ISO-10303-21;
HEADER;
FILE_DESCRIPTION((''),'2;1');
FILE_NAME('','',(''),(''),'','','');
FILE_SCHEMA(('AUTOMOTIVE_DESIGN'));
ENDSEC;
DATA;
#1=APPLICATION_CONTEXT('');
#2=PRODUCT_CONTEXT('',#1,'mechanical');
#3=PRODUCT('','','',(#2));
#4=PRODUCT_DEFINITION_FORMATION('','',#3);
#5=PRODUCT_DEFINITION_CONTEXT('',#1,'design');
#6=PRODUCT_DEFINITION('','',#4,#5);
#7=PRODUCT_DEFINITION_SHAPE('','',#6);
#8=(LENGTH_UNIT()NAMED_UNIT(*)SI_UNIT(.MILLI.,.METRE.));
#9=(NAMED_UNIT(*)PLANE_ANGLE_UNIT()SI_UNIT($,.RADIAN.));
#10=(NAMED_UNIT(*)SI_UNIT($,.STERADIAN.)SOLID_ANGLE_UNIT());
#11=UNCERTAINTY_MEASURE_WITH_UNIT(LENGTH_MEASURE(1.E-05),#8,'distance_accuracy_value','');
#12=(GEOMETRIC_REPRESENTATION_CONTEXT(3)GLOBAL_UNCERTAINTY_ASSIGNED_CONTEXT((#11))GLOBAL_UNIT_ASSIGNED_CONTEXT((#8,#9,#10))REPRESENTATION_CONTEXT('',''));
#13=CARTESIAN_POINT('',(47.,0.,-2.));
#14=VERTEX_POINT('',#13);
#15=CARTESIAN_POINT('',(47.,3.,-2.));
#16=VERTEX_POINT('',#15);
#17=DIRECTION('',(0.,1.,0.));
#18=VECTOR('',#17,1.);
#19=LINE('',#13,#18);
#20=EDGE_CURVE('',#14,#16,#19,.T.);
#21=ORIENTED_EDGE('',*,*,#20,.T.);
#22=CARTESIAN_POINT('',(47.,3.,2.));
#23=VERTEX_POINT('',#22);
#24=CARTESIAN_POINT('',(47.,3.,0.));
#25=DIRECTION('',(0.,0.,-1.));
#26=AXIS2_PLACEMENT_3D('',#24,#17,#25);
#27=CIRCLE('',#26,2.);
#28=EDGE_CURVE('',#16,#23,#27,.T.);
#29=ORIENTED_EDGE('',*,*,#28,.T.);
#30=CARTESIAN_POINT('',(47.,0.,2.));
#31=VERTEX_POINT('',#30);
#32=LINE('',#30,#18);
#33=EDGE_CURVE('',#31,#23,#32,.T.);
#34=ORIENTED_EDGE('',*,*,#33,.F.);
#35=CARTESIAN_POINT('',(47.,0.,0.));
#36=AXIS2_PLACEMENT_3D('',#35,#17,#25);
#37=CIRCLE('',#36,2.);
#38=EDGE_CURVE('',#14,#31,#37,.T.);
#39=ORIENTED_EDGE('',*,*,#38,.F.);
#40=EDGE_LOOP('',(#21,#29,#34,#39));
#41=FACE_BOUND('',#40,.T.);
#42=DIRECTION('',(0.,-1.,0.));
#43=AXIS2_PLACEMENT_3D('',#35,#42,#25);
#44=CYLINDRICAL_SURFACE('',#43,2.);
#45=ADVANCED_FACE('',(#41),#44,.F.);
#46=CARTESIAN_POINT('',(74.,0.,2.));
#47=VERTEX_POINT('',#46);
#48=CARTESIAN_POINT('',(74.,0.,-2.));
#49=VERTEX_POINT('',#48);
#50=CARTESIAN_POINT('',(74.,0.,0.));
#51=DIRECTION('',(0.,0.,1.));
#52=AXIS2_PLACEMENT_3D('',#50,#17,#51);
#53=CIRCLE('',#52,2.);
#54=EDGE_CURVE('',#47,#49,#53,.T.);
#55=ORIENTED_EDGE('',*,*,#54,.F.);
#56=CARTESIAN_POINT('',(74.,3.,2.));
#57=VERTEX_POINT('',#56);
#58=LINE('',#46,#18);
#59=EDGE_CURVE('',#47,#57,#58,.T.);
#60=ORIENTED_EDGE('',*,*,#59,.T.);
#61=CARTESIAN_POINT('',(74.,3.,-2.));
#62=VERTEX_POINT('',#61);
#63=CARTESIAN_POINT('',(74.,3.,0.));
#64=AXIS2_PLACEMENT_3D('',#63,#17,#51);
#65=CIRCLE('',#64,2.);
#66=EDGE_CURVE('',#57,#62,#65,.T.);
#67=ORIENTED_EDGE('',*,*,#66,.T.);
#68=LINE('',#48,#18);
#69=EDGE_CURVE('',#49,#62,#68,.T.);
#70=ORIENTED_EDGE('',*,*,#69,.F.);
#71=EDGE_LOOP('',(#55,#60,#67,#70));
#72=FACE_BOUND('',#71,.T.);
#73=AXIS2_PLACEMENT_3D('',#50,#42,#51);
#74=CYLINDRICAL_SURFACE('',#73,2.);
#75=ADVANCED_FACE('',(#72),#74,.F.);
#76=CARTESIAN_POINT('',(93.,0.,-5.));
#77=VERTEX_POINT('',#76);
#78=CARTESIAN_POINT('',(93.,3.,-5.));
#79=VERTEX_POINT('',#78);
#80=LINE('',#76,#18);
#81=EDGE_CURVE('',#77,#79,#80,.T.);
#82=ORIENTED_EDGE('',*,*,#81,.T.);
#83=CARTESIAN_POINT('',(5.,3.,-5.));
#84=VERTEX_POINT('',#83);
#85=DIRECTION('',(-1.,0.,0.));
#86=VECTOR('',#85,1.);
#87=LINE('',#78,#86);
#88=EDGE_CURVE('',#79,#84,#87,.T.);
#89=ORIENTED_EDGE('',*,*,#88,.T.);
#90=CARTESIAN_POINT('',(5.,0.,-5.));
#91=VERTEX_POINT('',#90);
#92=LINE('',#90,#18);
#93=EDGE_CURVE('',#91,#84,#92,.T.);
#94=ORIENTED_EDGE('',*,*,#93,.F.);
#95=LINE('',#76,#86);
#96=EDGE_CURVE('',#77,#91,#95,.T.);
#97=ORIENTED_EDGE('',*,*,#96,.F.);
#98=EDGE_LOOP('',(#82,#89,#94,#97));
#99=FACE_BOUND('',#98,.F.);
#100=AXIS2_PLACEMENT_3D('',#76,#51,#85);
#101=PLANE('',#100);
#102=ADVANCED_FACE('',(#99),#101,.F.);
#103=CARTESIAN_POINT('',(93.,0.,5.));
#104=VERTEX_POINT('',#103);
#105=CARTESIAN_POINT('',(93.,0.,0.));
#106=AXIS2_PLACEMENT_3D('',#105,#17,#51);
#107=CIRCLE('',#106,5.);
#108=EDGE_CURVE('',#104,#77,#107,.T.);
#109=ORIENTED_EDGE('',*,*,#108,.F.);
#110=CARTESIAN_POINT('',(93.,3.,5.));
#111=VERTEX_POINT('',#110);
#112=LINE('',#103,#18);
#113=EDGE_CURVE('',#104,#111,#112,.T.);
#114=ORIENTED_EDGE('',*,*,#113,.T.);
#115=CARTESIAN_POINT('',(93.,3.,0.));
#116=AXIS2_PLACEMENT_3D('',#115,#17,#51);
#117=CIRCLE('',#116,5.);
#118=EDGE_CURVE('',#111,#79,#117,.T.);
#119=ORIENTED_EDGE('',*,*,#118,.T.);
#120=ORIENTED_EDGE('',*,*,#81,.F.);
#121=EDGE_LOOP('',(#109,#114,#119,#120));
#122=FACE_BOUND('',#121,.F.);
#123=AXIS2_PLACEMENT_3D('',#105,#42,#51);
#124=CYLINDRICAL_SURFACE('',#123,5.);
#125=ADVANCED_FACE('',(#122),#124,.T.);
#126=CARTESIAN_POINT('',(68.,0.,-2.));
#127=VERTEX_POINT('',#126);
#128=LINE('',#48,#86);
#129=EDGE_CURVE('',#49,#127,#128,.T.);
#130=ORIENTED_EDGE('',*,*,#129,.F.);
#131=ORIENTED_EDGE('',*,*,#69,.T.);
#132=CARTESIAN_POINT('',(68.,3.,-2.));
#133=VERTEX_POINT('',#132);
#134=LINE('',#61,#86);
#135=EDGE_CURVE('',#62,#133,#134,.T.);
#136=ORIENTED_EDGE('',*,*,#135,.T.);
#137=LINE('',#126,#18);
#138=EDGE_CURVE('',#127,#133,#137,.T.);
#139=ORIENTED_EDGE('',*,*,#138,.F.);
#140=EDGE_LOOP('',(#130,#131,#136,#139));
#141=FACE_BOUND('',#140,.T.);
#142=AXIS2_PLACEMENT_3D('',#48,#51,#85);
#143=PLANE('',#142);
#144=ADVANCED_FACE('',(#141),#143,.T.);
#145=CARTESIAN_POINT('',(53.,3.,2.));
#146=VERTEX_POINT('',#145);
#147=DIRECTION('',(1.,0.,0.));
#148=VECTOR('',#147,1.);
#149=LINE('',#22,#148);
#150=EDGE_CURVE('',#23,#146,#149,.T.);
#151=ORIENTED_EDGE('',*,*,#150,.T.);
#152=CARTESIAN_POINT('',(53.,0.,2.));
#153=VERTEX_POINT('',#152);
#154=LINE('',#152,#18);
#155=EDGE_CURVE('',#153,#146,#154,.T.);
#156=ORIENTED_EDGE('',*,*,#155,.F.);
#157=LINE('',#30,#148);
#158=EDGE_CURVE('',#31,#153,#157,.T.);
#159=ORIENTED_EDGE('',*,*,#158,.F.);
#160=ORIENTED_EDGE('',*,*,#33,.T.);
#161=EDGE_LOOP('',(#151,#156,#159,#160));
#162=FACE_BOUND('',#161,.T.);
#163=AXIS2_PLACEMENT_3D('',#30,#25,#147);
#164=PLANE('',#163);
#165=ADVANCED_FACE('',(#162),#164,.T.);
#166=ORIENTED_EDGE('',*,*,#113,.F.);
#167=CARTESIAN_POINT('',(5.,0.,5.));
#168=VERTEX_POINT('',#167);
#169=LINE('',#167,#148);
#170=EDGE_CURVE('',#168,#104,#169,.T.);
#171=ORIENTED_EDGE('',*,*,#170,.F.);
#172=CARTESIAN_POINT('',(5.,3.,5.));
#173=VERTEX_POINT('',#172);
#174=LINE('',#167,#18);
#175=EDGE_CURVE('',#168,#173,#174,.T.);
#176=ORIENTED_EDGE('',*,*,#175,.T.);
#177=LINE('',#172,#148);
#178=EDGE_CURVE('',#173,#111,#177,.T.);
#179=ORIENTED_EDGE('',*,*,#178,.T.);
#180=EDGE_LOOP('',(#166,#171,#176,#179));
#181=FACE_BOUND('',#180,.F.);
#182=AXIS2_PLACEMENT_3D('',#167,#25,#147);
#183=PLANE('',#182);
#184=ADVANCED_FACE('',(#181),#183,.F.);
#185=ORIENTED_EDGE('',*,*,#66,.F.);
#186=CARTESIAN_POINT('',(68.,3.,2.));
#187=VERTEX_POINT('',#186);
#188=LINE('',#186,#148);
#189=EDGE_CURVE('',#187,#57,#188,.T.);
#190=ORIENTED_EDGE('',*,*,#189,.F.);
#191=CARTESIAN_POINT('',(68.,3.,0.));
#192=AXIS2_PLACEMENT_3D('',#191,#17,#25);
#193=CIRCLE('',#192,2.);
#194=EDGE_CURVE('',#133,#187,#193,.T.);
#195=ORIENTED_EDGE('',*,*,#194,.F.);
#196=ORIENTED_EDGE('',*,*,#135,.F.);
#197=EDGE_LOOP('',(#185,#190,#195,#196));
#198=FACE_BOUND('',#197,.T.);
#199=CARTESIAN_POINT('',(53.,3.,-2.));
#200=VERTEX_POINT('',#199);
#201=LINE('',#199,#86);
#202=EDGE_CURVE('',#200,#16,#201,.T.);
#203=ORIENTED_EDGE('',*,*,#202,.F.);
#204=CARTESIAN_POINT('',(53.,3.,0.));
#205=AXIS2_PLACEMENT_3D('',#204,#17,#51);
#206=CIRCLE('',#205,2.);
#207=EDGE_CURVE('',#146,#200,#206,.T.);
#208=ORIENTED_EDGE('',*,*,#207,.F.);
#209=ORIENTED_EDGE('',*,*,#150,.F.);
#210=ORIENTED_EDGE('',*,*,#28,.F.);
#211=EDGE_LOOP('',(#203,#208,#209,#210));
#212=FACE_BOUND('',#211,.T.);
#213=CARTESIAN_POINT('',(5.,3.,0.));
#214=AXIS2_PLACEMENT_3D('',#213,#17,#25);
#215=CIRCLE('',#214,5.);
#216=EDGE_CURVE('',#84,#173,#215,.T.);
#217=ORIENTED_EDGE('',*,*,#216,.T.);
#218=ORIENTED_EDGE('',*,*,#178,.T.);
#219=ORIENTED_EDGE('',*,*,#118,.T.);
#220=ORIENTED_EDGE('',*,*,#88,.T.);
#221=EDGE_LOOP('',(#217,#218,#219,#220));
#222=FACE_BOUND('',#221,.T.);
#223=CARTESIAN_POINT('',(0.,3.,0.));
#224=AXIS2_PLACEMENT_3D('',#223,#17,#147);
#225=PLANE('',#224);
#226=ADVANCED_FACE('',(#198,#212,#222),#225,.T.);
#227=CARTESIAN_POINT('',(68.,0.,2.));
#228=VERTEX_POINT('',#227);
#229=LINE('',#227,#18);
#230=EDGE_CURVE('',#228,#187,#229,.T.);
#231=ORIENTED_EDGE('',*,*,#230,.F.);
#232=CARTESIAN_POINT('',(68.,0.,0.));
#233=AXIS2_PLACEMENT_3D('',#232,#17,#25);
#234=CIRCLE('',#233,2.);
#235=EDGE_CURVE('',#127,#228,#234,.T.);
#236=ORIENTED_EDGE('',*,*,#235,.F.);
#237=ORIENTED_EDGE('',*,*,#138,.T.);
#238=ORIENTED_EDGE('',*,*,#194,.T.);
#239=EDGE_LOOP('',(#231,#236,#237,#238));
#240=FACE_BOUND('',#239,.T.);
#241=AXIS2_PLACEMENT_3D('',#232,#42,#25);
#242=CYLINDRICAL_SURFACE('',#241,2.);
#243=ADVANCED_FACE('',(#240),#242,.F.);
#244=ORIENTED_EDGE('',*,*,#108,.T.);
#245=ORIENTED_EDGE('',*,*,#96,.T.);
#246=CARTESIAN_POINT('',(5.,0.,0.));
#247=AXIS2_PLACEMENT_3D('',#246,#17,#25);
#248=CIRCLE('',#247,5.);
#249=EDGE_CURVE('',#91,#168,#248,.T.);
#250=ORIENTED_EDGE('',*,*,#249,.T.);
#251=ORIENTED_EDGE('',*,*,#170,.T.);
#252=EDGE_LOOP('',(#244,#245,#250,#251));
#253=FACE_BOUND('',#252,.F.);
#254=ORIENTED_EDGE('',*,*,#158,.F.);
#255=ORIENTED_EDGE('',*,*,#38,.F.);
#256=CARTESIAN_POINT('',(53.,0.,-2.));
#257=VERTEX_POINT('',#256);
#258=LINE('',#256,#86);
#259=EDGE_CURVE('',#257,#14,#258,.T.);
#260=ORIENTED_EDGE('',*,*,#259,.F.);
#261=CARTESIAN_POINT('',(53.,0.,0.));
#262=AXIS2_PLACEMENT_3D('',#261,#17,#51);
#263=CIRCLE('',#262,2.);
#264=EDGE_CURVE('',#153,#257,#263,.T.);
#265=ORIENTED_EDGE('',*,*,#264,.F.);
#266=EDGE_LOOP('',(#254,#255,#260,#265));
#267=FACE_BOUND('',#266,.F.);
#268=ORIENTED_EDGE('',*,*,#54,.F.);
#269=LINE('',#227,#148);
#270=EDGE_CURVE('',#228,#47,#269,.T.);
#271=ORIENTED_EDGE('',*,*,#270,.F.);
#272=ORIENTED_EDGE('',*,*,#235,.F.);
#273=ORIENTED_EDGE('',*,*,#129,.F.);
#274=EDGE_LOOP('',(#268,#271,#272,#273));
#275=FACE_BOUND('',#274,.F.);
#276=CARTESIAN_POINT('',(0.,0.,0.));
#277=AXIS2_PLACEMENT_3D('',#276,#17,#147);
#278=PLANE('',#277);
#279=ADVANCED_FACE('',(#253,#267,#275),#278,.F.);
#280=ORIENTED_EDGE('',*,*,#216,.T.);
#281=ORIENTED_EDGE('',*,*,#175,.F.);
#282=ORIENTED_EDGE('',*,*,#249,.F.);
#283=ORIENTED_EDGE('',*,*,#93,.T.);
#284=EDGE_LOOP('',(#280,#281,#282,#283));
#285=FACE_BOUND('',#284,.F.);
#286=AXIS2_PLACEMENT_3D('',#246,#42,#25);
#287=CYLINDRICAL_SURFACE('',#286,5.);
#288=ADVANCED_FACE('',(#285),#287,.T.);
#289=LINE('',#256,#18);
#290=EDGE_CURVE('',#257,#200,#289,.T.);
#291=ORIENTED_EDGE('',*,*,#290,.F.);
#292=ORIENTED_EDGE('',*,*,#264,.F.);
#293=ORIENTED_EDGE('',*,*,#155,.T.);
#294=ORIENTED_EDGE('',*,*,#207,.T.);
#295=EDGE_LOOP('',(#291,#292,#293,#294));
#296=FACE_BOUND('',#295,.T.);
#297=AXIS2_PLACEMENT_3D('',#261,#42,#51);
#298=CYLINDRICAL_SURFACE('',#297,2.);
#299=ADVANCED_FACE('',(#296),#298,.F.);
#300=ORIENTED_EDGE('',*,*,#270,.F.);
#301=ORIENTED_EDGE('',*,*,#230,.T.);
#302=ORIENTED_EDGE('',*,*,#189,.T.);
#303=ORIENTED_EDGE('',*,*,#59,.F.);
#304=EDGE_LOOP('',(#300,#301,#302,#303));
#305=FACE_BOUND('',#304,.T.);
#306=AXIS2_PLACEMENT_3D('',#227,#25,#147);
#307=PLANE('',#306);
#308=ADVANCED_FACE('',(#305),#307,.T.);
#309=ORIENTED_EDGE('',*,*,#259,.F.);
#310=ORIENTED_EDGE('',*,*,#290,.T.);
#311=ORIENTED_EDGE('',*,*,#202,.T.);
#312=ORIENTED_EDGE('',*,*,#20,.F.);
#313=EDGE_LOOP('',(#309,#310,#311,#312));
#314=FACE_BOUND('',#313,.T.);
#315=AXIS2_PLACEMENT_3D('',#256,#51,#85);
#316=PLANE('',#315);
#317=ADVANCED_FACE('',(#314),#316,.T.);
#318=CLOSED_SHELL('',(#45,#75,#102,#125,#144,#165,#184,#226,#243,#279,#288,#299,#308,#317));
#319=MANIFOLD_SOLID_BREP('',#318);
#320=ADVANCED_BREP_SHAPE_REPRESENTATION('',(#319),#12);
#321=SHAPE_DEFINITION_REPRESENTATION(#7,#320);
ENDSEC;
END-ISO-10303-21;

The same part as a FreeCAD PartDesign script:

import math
import FreeCAD as App
import Part
import Sketcher

V = App.Vector

doc = App.newDocument("Part")
body = doc.addObject("PartDesign::Body", "Body")

sketch1 = body.newObject("Sketcher::SketchObject", "Sketch")
sketch1.AttachmentSupport = (doc.getObject("XZ_Plane"), [""])
sketch1.MapMode = "FlatFace"
sketch1.addGeometry([
    Part.ArcOfCircle(Part.Circle(V(5, 0, 0), V(0, 0, 1), 5), math.radians(90), math.radians(270)),
    Part.LineSegment(V(5, 5, 0), V(93, 5, 0)),
    Part.ArcOfCircle(Part.Circle(V(93, 0, 0), V(0, 0, 1), 5), math.radians(-90), math.radians(90)),
    Part.LineSegment(V(93, -5, 0), V(5, -5, 0)),
    Part.LineSegment(V(47, -2, 0), V(53, -2, 0)),
    Part.ArcOfCircle(Part.Circle(V(53, 0, 0), V(0, 0, 1), 2), math.radians(-90), math.radians(90)),
    Part.LineSegment(V(53, 2, 0), V(47, 2, 0)),
    Part.ArcOfCircle(Part.Circle(V(47, 0, 0), V(0, 0, 1), 2), math.radians(90), math.radians(270)),
    Part.LineSegment(V(74, 2, 0), V(68, 2, 0)),
    Part.ArcOfCircle(Part.Circle(V(68, 0, 0), V(0, 0, 1), 2), math.radians(90), math.radians(270)),
    Part.LineSegment(V(68, -2, 0), V(74, -2, 0)),
    Part.ArcOfCircle(Part.Circle(V(74, 0, 0), V(0, 0, 1), 2), math.radians(-90), math.radians(90)),
], False)
sketch1.addConstraint([
    Sketcher.Constraint("Tangent", 0, 1, 1, 1),
    Sketcher.Constraint("Tangent", 1, 2, 2, 2),
    Sketcher.Constraint("Tangent", 2, 1, 3, 1),
    Sketcher.Constraint("Tangent", 3, 2, 0, 2),
    Sketcher.Constraint("Tangent", 4, 2, 5, 1),
    Sketcher.Constraint("Tangent", 5, 2, 6, 1),
    Sketcher.Constraint("Tangent", 6, 2, 7, 1),
    Sketcher.Constraint("Tangent", 7, 2, 4, 1),
    Sketcher.Constraint("Tangent", 8, 2, 9, 1),
    Sketcher.Constraint("Tangent", 9, 2, 10, 1),
    Sketcher.Constraint("Tangent", 10, 2, 11, 1),
    Sketcher.Constraint("Tangent", 11, 2, 8, 1),
    Sketcher.Constraint("Horizontal", 1),
    Sketcher.Constraint("Horizontal", 3),
    Sketcher.Constraint("Horizontal", 4),
    Sketcher.Constraint("Horizontal", 6),
    Sketcher.Constraint("Horizontal", 8),
    Sketcher.Constraint("Horizontal", 10),
    Sketcher.Constraint("Equal", 7, 9),
    Sketcher.Constraint("PointOnObject", 0, 3, -1),
    Sketcher.Constraint("PointOnObject", 5, 3, -1),
    Sketcher.Constraint("PointOnObject", 9, 3, -1),
    Sketcher.Constraint("Equal", 6, 8),
    Sketcher.Constraint("Radius", 0, 5.0),
    Sketcher.Constraint("Radius", 5, 2.0),
    Sketcher.Constraint("DistanceX", 4, 1, 4, 2, 6.0),
    Sketcher.Constraint("DistanceX", 7, 3, 9, 3, 21.0),
    Sketcher.Constraint("DistanceX", 1, 1, 1, 2, 88.0),
    Sketcher.Constraint("DistanceX", -1, 1, 0, 3, 5.0),
    Sketcher.Constraint("DistanceX", -1, 1, 5, 3, 53.0),
])
pad1 = body.newObject("PartDesign::Pad", "Pad")
pad1.Profile = sketch1
pad1.Length = 3
pad1.Reversed = True

doc.recompute()
